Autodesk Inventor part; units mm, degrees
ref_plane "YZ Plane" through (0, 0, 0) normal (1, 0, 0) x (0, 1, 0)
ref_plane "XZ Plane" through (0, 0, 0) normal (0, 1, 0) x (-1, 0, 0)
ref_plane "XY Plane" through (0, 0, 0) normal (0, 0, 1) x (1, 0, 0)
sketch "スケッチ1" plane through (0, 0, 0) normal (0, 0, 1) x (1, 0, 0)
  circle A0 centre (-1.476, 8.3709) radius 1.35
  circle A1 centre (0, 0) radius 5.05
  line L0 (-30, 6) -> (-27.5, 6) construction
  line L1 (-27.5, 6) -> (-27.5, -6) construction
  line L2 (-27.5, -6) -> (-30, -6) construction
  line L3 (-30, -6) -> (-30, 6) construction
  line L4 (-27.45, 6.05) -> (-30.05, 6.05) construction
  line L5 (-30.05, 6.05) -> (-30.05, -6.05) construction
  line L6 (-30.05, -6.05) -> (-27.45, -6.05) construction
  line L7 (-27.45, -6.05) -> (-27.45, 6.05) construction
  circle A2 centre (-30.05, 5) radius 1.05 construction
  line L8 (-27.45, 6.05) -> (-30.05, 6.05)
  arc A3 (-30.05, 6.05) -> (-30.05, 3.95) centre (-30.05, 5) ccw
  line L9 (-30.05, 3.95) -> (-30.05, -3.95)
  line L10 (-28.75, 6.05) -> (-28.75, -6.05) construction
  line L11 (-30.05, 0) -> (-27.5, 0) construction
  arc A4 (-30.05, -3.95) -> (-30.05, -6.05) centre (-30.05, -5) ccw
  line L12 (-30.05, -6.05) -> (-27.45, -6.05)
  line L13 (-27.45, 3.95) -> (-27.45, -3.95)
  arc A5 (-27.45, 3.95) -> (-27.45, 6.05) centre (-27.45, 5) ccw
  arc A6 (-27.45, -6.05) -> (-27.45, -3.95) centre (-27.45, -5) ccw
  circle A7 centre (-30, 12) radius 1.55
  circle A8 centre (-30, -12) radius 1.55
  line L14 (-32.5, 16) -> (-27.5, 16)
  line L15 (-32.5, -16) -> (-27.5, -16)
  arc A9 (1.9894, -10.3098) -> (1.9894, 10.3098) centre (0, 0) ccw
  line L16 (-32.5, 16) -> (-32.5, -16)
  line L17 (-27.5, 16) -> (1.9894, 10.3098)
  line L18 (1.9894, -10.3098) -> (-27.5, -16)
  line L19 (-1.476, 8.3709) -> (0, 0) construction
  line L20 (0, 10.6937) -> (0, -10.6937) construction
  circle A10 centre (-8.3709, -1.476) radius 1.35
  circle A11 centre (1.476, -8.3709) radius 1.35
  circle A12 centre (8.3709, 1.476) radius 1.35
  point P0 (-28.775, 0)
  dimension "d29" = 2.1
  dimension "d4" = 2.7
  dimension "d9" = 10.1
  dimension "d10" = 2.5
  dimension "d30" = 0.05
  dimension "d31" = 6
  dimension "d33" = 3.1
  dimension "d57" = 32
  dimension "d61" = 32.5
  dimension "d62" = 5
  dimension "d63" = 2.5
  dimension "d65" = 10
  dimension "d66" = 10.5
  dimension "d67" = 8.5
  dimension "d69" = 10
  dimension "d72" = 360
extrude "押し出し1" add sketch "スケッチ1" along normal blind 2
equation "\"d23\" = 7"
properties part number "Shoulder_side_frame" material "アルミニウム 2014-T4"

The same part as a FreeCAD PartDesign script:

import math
import FreeCAD as App
import Part
import Sketcher

doc = App.newDocument("Part")
params = doc.addObject("Spreadsheet::Sheet", "Params")
for row, (alias, value) in enumerate([
    ("sketch1_diameter", "3.1 mm"),
    ("sketch1_diameter2", "2.7 mm"),
    ("sketch1_diameter3", "10.1 mm"),
    ("sketch1_radius", "10.5 mm"),
    ("sketch1_width", "5 mm"),
    ("pad1_length", "2 mm"),
], start=1):
    params.set(f"A{row}", alias)
    params.set(f"B{row}", "=" + value)
    params.setAlias(f"B{row}", alias)

body = doc.addObject("PartDesign::Body", "Body")

# Sketch on XY plane
sketch1 = doc.addObject("Sketcher::SketchObject", "Sketch")
body.addObject(sketch1)
sketch1.AttachmentSupport = (doc.XY_Plane, [""])
sketch1.MapMode = "FlatFace"
sketch1.addGeometry([
    Part.LineSegment(App.Vector(-27.5, 16, 0), App.Vector(-32.5, 16, 0)),  # 0
    Part.LineSegment(App.Vector(-32.5, 16, 0), App.Vector(-32.5, -16, 0)),  # 1
    Part.LineSegment(App.Vector(-32.5, -16, 0), App.Vector(-27.5, -16, 0)),  # 2
    Part.LineSegment(App.Vector(-27.5, -16, 0), App.Vector(1.9894, -10.3098, 0)),  # 3
    Part.ArcOfCircle(Part.Circle(App.Vector(0, 0, 0), App.Vector(0, 0, 1), 10.499985), math.radians(-79.078323), math.radians(79.078323)),  # 4
    Part.LineSegment(App.Vector(1.9894, 10.3098, 0), App.Vector(-27.5, 16, 0)),  # 5
    Part.Circle(App.Vector(-30, -12, 0), App.Vector(0, 0, 1), 1.55),  # 6
    Part.Circle(App.Vector(1.476, -8.3709, 0), App.Vector(0, 0, 1), 1.35),  # 7
    Part.Circle(App.Vector(-8.3709, -1.476, 0), App.Vector(0, 0, 1), 1.35),  # 8
    Part.LineSegment(App.Vector(-30.05, 6.05, 0), App.Vector(-27.45, 6.05, 0)),  # 9
    Part.ArcOfCircle(Part.Circle(App.Vector(-27.45, 5, 0), App.Vector(0, 0, 1), 1.05), math.radians(-90), math.radians(90)),  # 10
    Part.LineSegment(App.Vector(-27.45, 3.95, 0), App.Vector(-27.45, -3.95, 0)),  # 11
    Part.ArcOfCircle(Part.Circle(App.Vector(-27.45, -5, 0), App.Vector(0, 0, 1), 1.05), math.radians(-90), math.radians(90)),  # 12
    Part.LineSegment(App.Vector(-27.45, -6.05, 0), App.Vector(-30.05, -6.05, 0)),  # 13
    Part.ArcOfCircle(Part.Circle(App.Vector(-30.05, -5, 0), App.Vector(0, 0, 1), 1.05), math.radians(90), math.radians(270)),  # 14
    Part.LineSegment(App.Vector(-30.05, -3.95, 0), App.Vector(-30.05, 3.95, 0)),  # 15
    Part.ArcOfCircle(Part.Circle(App.Vector(-30.05, 5, 0), App.Vector(0, 0, 1), 1.05), math.radians(90), math.radians(270)),  # 16
    Part.Circle(App.Vector(-30, 12, 0), App.Vector(0, 0, 1), 1.55),  # 17
    Part.Circle(App.Vector(0, 0, 0), App.Vector(0, 0, 1), 5.05),  # 18
    Part.Circle(App.Vector(8.3709, 1.476, 0), App.Vector(0, 0, 1), 1.35),  # 19
    Part.Circle(App.Vector(-1.476, 8.3709, 0), App.Vector(0, 0, 1), 1.35),  # 20
], False)
sketch1.addConstraint([
    Sketcher.Constraint("Coincident", 0, 2, 1, 1),
    Sketcher.Constraint("Coincident", 1, 2, 2, 1),
    Sketcher.Constraint("Coincident", 2, 2, 3, 1),
    Sketcher.Constraint("Tangent", 3, 2, 4, 1),
    Sketcher.Constraint("Tangent", 4, 2, 5, 1),
    Sketcher.Constraint("Coincident", 5, 2, 0, 1),
    Sketcher.Constraint("Tangent", 9, 2, 10, 2),
    Sketcher.Constraint("Coincident", 10, 1, 11, 1),
    Sketcher.Constraint("Coincident", 11, 2, 12, 2),
    Sketcher.Constraint("Tangent", 12, 1, 13, 1),
    Sketcher.Constraint("Tangent", 13, 2, 14, 2),
    Sketcher.Constraint("Coincident", 14, 1, 15, 1),
    Sketcher.Constraint("Coincident", 15, 2, 16, 2),
    Sketcher.Constraint("Tangent", 16, 1, 9, 1),
    Sketcher.Constraint("Horizontal", 0),
    Sketcher.Constraint("Vertical", 1),
    Sketcher.Constraint("Horizontal", 2),
    Sketcher.Constraint("Horizontal", 9),
    Sketcher.Constraint("Vertical", 11),
    Sketcher.Constraint("Horizontal", 13),
    Sketcher.Constraint("Vertical", 15),
    Sketcher.Constraint("Coincident", 4, 3, -1, 1),
    Sketcher.Constraint("Coincident", 18, 3, -1, 1),
    Sketcher.Constraint("Equal", 7, 8),
    Sketcher.Constraint("Equal", 10, 12),
    Sketcher.Constraint("Equal", 12, 14),
    Sketcher.Constraint("Equal", 14, 16),
    Sketcher.Constraint("Equal", 6, 17),
    Sketcher.Constraint("Equal", 8, 19),
    Sketcher.Constraint("Equal", 19, 20),
    Sketcher.Constraint("Symmetric", 8, 3, 19, 3, -1, 1),
    Sketcher.Constraint("Symmetric", 7, 3, 20, 3, -1, 1),
    Sketcher.Constraint("Symmetric", 10, 3, 12, 3, -1),
    Sketcher.Constraint("Symmetric", 6, 3, 17, 3, -1),
    Sketcher.Constraint("Symmetric", 2, 2, 5, 2, -1),
    Sketcher.Constraint("Vertical", 14, 3, 16, 3),
    Sketcher.Constraint("Vertical", 9, 2, 10, 1),
    Sketcher.Constraint("Vertical", 13, 2, 14, 1),
    Sketcher.Constraint("Diameter", 6, 3.1),
    Sketcher.Constraint("Diameter", 7, 2.7),
    Sketcher.Constraint("Diameter", 18, 10.1),
    Sketcher.Constraint("Radius", 4, 10.5),
    Sketcher.Constraint("DistanceX", 0, 2, 0, 1, 5.0),
    Sketcher.Constraint("DistanceY", 1, 2, 1, 1, 32.0),
    Sketcher.Constraint("Radius", 10, 1.05),
    Sketcher.Constraint("DistanceY", -1, 1, 10, 3, 5.0),
    Sketcher.Constraint("DistanceX", 0, 2, -1, 1, 32.5),
    Sketcher.Constraint("DistanceX", 0, 2, 17, 3, 2.5),
    Sketcher.Constraint("DistanceX", 14, 3, 6, 3, 0.05),
    Sketcher.Constraint("DistanceX", 2, 2, 12, 3, 0.05),
    Sketcher.Constraint("DistanceY", 6, 3, -1, 1, 12.0),
    Sketcher.Constraint("DistanceX", -1, 1, 7, 3, 1.476),
    Sketcher.Constraint("DistanceY", 7, 3, -1, 1, 8.371),
    Sketcher.Constraint("DistanceX", 8, 3, -1, 1, 8.371),
    Sketcher.Constraint("DistanceY", 8, 3, -1, 1, 1.476),
])
sketch1.setExpression("Constraints[38]", "Params.sketch1_diameter")
sketch1.setExpression("Constraints[39]", "Params.sketch1_diameter2")
sketch1.setExpression("Constraints[40]", "Params.sketch1_diameter3")
sketch1.setExpression("Constraints[41]", "Params.sketch1_radius")
sketch1.setExpression("Constraints[42]", "Params.sketch1_width")
pad1 = doc.addObject("PartDesign::Pad", "Pad")
body.addObject(pad1)
pad1.Profile = sketch1
pad1.setExpression("Length", "Params.pad1_length")

doc.recompute()
